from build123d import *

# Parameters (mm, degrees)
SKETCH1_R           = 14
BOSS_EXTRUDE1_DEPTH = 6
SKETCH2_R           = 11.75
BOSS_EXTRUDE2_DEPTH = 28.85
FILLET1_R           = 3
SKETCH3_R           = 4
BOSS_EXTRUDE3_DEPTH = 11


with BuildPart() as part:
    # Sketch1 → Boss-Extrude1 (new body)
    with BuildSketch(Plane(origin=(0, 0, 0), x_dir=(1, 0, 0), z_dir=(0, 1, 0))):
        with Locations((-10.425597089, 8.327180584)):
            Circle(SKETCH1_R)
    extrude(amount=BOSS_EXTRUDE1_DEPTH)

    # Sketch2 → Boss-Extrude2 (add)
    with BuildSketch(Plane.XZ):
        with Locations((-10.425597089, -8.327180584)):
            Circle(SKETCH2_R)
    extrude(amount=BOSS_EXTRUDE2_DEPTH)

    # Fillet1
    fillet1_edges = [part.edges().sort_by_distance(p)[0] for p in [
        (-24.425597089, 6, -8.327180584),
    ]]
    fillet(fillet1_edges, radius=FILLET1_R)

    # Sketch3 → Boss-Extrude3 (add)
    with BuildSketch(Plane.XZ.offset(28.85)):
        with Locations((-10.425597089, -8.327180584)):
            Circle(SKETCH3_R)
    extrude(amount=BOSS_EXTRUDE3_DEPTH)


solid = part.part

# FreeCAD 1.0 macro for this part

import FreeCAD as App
import Part
import Sketcher
from FreeCAD import Vector
Q = App.Units.Quantity


def edges_at(feature, points):
    """Names of the edges that pass closest to the given points."""
    edges = feature.Shape.Edges
    near = lambda p: min(range(len(edges)), key=lambda i: edges[i].distToShape(Part.Vertex(*p))[0])
    return sorted({f"Edge{near(p) + 1}" for p in points})

doc = App.newDocument("Part")
body = doc.addObject("PartDesign::Body", "Body")

# Sketch on XZ plane
sketch1 = doc.addObject("Sketcher::SketchObject", "Sketch")
body.addObject(sketch1)
sketch1.AttachmentSupport = (doc.XZ_Plane, [""])
sketch1.MapMode = "FlatFace"
sketch1.addGeometry(Part.Circle(Vector(-10, -8, 0), Vector(0, 0, 1), 14), False)
sketch1.addConstraint([
    Sketcher.Constraint("Diameter", 0, Q("28 mm")),
    Sketcher.Constraint("DistanceY", 0, 3, -1, 1, Q("8.327181 mm")),
    Sketcher.Constraint("DistanceX", 0, 3, -1, 1, Q("10.425597 mm")),
])
pad1 = doc.addObject("PartDesign::Pad", "Pad")
body.addObject(pad1)
pad1.Profile = sketch1
pad1.Length = 6
pad1.Reversed = True

# Sketch on XZ plane
sketch2 = doc.addObject("Sketcher::SketchObject", "Sketch001")
body.addObject(sketch2)
sketch2.AttachmentSupport = (doc.XZ_Plane, [""])
sketch2.MapMode = "FlatFace"
sketch2.addGeometry(Part.Circle(Vector(-10, -8, 0), Vector(0, 0, 1), 12), False)
sketch2.addConstraint([
    Sketcher.Constraint("Diameter", 0, Q("23.5 mm")),
    Sketcher.Constraint("DistanceY", 0, 3, -1, 1, Q("8.327181 mm")),
    Sketcher.Constraint("DistanceX", 0, 3, -1, 1, Q("10.425597 mm")),
])
pad2 = doc.addObject("PartDesign::Pad", "Pad001")
body.addObject(pad2)
pad2.Profile = sketch2
pad2.Length = 28.85
doc.recompute()

fillet = doc.addObject("PartDesign::Fillet", "Fillet")
body.addObject(fillet)
fillet.Base = (pad2, edges_at(pad2, [(-24.426, 6, -8.327)]))
fillet.Radius = 3

# Sketch on XZ plane
sketch3 = doc.addObject("Sketcher::SketchObject", "Sketch002")
body.addObject(sketch3)
sketch3.AttachmentSupport = (doc.XZ_Plane, [""])
sketch3.MapMode = "FlatFace"
sketch3.AttachmentOffset = App.Placement(Vector(0, 0, 28.85), App.Rotation())
sketch3.addGeometry(Part.Circle(Vector(-10.4, -8.3, 0), Vector(0, 0, 1), 4), False)
sketch3.addConstraint([
    Sketcher.Constraint("Diameter", 0, Q("8 mm")),
    Sketcher.Constraint("DistanceY", 0, 3, -1, 1, Q("8.327181 mm")),
    Sketcher.Constraint("DistanceX", 0, 3, -1, 1, Q("10.425597 mm")),
])
pad3 = doc.addObject("PartDesign::Pad", "Pad002")
body.addObject(pad3)
pad3.Profile = sketch3
pad3.Length = 11

doc.recompute()
